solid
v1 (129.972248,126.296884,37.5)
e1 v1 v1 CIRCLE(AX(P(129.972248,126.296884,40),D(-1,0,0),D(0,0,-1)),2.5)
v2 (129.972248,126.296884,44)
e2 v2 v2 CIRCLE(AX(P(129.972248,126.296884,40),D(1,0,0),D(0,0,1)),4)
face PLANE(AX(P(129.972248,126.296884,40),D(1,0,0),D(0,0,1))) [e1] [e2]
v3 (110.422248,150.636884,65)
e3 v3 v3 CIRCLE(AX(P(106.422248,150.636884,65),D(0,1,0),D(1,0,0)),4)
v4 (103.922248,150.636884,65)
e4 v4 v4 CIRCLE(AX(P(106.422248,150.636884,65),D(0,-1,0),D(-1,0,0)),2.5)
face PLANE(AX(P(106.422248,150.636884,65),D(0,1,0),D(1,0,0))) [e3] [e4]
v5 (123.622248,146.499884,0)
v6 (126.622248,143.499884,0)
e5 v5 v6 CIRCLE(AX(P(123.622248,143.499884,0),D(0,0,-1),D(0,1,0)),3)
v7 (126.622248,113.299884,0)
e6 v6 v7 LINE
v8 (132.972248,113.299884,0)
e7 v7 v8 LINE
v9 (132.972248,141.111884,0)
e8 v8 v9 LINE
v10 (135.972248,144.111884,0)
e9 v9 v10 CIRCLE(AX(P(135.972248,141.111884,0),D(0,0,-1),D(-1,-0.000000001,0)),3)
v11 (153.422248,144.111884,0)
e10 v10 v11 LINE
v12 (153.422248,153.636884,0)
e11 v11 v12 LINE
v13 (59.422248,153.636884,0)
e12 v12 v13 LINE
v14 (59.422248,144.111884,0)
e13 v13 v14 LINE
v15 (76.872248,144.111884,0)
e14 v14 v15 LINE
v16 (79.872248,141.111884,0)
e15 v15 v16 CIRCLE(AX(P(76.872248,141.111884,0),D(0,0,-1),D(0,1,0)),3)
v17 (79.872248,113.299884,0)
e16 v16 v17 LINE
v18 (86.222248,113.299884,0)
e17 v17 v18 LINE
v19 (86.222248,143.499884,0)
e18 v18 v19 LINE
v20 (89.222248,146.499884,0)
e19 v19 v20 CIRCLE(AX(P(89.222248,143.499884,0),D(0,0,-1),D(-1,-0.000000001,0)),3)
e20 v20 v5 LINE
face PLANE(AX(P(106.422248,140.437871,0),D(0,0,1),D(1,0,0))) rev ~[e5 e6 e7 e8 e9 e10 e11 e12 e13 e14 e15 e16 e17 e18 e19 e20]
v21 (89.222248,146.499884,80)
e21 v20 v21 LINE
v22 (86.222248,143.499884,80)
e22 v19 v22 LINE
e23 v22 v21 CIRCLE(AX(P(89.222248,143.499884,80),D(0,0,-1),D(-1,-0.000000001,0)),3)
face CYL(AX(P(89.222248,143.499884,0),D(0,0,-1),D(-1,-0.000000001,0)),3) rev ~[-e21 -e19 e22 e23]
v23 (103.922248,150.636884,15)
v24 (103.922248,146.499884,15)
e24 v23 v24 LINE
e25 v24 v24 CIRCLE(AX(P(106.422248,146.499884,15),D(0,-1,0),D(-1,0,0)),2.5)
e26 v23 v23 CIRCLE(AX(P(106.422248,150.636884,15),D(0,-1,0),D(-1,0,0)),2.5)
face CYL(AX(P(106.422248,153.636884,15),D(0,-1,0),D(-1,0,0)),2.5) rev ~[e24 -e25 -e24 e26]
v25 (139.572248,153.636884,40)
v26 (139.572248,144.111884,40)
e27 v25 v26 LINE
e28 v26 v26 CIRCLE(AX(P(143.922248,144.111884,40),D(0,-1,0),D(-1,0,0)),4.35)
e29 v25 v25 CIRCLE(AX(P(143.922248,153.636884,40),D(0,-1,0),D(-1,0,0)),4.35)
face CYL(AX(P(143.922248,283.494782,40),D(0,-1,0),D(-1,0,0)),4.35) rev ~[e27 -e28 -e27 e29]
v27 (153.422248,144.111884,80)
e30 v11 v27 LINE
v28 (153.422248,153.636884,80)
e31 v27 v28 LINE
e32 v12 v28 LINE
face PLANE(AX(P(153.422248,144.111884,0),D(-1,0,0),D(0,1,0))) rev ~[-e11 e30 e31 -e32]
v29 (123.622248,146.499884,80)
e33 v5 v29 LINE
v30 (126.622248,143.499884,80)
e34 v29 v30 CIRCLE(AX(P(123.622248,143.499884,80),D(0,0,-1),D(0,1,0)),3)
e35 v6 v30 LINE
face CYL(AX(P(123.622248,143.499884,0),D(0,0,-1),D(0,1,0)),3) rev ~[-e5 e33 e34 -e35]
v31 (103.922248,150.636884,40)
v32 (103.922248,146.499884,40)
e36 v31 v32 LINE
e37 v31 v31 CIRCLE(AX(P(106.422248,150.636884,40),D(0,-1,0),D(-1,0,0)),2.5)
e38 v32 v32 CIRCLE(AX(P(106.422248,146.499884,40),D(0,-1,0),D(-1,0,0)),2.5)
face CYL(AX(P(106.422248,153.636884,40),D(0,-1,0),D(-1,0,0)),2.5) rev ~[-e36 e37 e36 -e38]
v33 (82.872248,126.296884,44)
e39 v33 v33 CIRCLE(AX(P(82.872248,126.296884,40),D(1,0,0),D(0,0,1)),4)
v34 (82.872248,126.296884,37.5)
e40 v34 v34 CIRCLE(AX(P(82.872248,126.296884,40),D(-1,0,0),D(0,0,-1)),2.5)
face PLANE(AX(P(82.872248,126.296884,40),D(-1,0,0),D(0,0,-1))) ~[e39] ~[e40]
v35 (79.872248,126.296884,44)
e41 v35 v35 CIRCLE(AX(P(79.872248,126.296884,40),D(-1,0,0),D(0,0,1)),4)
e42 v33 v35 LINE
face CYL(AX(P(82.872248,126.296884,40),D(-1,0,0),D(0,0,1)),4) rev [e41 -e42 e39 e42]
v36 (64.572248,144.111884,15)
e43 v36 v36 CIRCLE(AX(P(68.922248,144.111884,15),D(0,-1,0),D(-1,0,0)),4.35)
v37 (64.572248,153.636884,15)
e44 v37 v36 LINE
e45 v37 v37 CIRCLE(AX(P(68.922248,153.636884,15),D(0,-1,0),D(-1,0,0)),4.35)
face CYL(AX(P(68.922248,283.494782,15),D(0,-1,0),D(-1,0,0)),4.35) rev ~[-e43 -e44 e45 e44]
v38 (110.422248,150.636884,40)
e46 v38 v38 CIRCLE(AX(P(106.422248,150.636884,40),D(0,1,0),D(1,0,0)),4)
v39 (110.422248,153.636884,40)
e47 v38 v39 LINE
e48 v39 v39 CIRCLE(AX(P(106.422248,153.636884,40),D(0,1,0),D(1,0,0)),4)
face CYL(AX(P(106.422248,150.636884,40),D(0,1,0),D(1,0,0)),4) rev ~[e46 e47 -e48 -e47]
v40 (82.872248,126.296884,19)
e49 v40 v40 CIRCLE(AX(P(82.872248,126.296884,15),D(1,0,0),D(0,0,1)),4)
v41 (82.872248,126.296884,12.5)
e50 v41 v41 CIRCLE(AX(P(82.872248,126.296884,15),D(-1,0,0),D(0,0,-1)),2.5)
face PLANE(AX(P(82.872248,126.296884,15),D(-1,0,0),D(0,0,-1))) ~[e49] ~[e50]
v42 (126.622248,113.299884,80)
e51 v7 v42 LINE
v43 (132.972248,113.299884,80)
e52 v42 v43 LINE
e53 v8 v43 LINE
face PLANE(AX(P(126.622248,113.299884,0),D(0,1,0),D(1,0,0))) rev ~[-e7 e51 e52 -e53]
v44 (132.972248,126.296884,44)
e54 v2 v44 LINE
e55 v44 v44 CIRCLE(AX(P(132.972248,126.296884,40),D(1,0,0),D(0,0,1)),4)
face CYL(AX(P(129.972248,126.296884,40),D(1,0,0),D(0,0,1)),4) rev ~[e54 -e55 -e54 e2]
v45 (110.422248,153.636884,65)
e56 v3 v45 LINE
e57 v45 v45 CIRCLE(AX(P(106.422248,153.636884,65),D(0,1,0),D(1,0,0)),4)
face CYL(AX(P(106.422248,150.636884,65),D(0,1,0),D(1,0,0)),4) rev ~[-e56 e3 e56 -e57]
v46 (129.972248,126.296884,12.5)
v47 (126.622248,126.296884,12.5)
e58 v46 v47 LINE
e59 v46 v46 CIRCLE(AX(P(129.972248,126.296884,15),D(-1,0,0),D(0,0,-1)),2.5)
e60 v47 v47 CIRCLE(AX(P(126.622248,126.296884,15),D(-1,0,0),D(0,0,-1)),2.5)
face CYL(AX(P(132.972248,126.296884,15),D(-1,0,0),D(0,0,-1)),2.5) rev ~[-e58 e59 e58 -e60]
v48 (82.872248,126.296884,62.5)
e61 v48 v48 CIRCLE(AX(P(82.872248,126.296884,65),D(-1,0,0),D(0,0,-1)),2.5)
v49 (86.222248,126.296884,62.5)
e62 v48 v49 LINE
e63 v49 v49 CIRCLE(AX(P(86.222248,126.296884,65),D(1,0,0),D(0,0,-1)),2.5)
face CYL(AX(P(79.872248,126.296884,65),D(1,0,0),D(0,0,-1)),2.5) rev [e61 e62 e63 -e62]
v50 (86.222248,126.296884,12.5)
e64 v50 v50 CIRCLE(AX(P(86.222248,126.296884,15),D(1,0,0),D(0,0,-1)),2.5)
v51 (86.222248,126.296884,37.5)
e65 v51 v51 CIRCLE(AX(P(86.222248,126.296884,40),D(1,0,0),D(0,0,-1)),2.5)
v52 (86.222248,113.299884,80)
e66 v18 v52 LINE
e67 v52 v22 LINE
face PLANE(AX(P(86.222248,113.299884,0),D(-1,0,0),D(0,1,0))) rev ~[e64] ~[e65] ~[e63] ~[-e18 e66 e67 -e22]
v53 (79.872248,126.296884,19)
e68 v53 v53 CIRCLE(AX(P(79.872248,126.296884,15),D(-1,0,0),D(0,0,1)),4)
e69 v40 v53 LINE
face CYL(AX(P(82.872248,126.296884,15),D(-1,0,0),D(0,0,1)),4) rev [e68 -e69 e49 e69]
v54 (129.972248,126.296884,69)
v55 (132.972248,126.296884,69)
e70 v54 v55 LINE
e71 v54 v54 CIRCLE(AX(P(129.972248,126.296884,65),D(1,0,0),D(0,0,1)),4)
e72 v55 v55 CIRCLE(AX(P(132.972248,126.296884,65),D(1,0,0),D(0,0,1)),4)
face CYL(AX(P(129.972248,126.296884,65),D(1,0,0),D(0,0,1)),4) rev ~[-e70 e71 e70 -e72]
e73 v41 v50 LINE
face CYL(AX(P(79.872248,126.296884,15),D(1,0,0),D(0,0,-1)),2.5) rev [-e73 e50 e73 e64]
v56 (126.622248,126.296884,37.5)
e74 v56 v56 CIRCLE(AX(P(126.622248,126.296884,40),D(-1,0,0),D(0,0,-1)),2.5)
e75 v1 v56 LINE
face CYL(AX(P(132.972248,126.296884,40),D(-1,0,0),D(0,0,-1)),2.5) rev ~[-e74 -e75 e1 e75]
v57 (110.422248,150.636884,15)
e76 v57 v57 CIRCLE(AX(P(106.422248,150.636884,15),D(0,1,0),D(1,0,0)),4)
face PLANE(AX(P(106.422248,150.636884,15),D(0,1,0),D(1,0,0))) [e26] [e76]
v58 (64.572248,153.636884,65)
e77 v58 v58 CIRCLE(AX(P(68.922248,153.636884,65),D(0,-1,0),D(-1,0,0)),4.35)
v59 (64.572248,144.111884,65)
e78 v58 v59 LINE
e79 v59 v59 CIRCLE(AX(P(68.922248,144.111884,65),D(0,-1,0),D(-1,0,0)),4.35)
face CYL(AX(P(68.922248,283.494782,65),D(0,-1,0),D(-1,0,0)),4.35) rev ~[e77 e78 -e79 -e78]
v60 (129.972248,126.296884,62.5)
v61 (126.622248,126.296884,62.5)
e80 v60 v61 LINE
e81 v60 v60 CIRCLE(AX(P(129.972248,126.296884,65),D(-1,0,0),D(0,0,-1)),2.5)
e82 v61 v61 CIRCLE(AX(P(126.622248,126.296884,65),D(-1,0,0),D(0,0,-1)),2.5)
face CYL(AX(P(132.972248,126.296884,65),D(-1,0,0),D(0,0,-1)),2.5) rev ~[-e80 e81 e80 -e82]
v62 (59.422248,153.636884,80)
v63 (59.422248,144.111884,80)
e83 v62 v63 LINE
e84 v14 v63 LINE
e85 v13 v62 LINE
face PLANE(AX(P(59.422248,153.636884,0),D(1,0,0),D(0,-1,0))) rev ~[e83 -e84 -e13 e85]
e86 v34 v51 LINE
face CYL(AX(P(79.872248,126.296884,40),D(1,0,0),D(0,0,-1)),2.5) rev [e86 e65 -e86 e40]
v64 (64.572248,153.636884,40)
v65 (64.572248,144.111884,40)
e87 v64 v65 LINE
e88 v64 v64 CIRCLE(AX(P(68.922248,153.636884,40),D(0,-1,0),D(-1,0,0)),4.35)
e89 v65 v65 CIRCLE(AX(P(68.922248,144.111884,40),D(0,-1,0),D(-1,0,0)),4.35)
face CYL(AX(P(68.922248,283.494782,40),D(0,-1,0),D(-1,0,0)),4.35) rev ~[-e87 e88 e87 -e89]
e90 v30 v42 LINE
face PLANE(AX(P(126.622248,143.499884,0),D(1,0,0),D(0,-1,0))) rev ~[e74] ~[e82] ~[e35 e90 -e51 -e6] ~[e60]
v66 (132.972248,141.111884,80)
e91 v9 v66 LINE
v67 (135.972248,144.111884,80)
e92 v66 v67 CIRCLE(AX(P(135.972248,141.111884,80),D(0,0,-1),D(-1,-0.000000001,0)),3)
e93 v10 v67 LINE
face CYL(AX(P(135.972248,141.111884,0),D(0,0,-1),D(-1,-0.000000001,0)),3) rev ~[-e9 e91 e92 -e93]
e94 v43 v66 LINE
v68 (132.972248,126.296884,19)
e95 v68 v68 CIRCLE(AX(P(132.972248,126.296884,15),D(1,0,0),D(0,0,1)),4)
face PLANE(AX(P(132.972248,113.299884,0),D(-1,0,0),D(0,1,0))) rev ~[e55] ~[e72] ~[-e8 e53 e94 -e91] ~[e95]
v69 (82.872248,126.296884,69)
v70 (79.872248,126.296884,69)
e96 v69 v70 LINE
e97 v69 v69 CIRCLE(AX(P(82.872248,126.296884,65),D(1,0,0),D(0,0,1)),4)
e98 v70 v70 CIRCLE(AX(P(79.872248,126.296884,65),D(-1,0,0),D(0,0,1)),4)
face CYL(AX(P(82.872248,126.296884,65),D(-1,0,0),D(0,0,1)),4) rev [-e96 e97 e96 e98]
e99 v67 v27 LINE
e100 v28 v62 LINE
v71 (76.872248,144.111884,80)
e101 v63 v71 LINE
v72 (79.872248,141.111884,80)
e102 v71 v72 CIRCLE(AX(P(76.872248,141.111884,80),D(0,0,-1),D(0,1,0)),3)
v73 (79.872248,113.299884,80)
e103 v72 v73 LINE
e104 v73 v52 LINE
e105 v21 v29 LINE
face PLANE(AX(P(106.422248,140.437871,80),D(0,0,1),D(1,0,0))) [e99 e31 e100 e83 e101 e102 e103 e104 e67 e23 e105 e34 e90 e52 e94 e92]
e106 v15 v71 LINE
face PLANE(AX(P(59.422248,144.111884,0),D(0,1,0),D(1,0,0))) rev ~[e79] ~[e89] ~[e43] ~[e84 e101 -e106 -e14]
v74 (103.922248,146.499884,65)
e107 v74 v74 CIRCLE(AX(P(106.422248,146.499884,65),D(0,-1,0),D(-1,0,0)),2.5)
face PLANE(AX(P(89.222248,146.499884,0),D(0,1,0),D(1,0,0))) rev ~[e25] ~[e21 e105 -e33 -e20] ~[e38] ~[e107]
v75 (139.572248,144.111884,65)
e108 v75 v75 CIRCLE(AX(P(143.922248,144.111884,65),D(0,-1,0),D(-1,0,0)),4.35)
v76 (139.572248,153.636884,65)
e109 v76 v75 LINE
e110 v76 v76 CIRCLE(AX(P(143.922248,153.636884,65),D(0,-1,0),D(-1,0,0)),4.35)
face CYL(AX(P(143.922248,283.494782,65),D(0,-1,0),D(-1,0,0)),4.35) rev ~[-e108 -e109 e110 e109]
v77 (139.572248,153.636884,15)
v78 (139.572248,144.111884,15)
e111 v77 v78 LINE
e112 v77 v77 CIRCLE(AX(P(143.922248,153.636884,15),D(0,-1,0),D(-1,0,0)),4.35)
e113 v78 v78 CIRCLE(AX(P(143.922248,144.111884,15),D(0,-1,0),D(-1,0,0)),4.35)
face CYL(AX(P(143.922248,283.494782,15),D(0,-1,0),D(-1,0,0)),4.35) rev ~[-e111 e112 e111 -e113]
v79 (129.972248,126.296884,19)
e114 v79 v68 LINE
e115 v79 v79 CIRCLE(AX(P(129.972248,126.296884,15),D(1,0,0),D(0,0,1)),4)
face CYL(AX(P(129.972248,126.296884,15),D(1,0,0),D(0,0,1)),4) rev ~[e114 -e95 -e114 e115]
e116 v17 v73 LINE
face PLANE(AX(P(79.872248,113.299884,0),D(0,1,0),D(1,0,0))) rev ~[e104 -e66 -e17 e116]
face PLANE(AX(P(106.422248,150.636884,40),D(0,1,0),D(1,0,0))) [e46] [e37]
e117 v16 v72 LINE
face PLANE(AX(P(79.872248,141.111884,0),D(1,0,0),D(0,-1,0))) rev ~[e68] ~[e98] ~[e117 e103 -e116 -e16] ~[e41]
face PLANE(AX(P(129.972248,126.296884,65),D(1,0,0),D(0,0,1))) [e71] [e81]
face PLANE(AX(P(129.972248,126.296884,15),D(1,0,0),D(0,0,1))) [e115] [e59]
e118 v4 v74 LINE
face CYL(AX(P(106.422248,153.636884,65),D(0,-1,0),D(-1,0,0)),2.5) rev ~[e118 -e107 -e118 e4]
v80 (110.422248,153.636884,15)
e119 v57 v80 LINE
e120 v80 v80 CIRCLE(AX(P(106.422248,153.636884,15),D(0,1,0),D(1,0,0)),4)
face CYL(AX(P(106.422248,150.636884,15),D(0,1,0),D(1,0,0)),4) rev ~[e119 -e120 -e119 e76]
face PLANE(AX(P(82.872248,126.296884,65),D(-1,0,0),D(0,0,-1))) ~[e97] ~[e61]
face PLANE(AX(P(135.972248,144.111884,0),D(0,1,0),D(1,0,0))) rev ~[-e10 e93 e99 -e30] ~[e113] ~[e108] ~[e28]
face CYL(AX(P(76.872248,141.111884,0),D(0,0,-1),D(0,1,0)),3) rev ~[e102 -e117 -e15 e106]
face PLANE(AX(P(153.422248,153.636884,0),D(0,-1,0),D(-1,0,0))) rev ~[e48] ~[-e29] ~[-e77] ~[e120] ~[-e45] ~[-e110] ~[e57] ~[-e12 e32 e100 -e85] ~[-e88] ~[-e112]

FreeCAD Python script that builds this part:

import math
import FreeCAD as App
import Part
import Sketcher

V = App.Vector

doc = App.newDocument("Part")
params = doc.addObject("Spreadsheet::Sheet", "Params")
for row, (alias, value) in enumerate([
    ("sketch1_radius", "3 mm"),
    ("sketch1_width", "94 mm"),
    ("sketch1_width2", "34.4 mm"),
    ("sketch1_height", "30.2 mm"),
    ("sketch1_width3", "17.45 mm"),
    ("pad1_length", "80 mm"),
    ("sketch2_diameter", "8.7 mm"),
    ("hole_diameter", "8.7 mm"),
    ("sketch3_diameter", "5 mm"),
    ("hole2_diameter", "5 mm"),
    ("hole2_cbore_diameter", "8 mm"),
    ("hole2_cbore_depth", "3 mm"),
    ("sketch4_diameter", "5 mm"),
    ("hole3_diameter", "5 mm"),
    ("hole3_depth", "7 mm"),
    ("hole3_cbore_diameter", "8 mm"),
    ("hole3_cbore_depth", "3 mm"),
], start=1):
    params.set(f"A{row}", alias)
    params.set(f"B{row}", "=" + value)
    params.setAlias(f"B{row}", alias)

body = doc.addObject("PartDesign::Body", "Body")

sketch1 = doc.addObject("Sketcher::SketchObject", "Sketch")
body.addObject(sketch1)
sketch1.AttachmentSupport = (doc.XY_Plane, [""])
sketch1.MapMode = "FlatFace"
sketch1.addGeometry([
    Part.LineSegment(V(153.4, 153.6, 0), V(59.4, 153.6, 0)),
    Part.LineSegment(V(59.4, 153.6, 0), V(59.4, 144.1, 0)),
    Part.LineSegment(V(59.4, 144.1, 0), V(76.9, 144.1, 0)),
    Part.ArcOfCircle(Part.Circle(V(76.9, 141.1, 0), V(0, 0, 1), 3), math.radians(0), math.radians(90)),
    Part.LineSegment(V(79.9, 141.1, 0), V(79.9, 113.3, 0)),
    Part.LineSegment(V(79.9, 113.3, 0), V(86.2, 113.3, 0)),
    Part.LineSegment(V(86.2, 113.3, 0), V(86.2, 143.5, 0)),
    Part.ArcOfCircle(Part.Circle(V(89.2, 143.5, 0), V(0, 0, 1), 3), math.radians(90), math.radians(180)),
    Part.LineSegment(V(89.2, 146.5, 0), V(123.6, 146.5, 0)),
    Part.ArcOfCircle(Part.Circle(V(123.6, 143.5, 0), V(0, 0, 1), 3), math.radians(0), math.radians(90)),
    Part.LineSegment(V(126.6, 143.5, 0), V(126.6, 113.3, 0)),
    Part.LineSegment(V(126.6, 113.3, 0), V(133, 113.3, 0)),
    Part.LineSegment(V(133, 113.3, 0), V(133, 141.1, 0)),
    Part.ArcOfCircle(Part.Circle(V(136, 141.1, 0), V(0, 0, 1), 3), math.radians(90), math.radians(180)),
    Part.LineSegment(V(136, 144.1, 0), V(153.4, 144.1, 0)),
    Part.LineSegment(V(153.4, 144.1, 0), V(153.4, 153.6, 0)),
], False)
sketch1.addConstraint([
    Sketcher.Constraint("Coincident", 0, 2, 1, 1),
    Sketcher.Constraint("Coincident", 1, 2, 2, 1),
    Sketcher.Constraint("Tangent", 2, 2, 3, 2),
    Sketcher.Constraint("Tangent", 3, 1, 4, 1),
    Sketcher.Constraint("Coincident", 4, 2, 5, 1),
    Sketcher.Constraint("Coincident", 5, 2, 6, 1),
    Sketcher.Constraint("Tangent", 6, 2, 7, 2),
    Sketcher.Constraint("Tangent", 7, 1, 8, 1),
    Sketcher.Constraint("Tangent", 8, 2, 9, 2),
    Sketcher.Constraint("Tangent", 9, 1, 10, 1),
    Sketcher.Constraint("Coincident", 10, 2, 11, 1),
    Sketcher.Constraint("Coincident", 11, 2, 12, 1),
    Sketcher.Constraint("Tangent", 12, 2, 13, 2),
    Sketcher.Constraint("Tangent", 13, 1, 14, 1),
    Sketcher.Constraint("Coincident", 14, 2, 15, 1),
    Sketcher.Constraint("Coincident", 15, 2, 0, 1),
    Sketcher.Constraint("Horizontal", 0),
    Sketcher.Constraint("Vertical", 1),
    Sketcher.Constraint("Horizontal", 2),
    Sketcher.Constraint("Vertical", 4),
    Sketcher.Constraint("Horizontal", 5),
    Sketcher.Constraint("Vertical", 6),
    Sketcher.Constraint("Horizontal", 8),
    Sketcher.Constraint("Vertical", 10),
    Sketcher.Constraint("Horizontal", 11),
    Sketcher.Constraint("Vertical", 12),
    Sketcher.Constraint("Horizontal", 14),
    Sketcher.Constraint("Vertical", 15),
    Sketcher.Constraint("Equal", 3, 7),
    Sketcher.Constraint("Equal", 7, 9),
    Sketcher.Constraint("Equal", 9, 13),
    Sketcher.Constraint("Horizontal", 3, 3, 13, 3),
    Sketcher.Constraint("Horizontal", 5, 2, 10, 2),
    Sketcher.Constraint("Equal", 5, 11),
    Sketcher.Constraint("Equal", 2, 14),
    Sketcher.Constraint("Radius", 3, 3.0),
    Sketcher.Constraint("DistanceX", 0, 2, 0, 1, 94.0),
    Sketcher.Constraint("DistanceX", 8, 1, 8, 2, 34.4),
    Sketcher.Constraint("DistanceY", 6, 1, 6, 2, 30.2),
    Sketcher.Constraint("DistanceX", 2, 1, 2, 2, 17.45),
    Sketcher.Constraint("DistanceY", 1, 2, 1, 1, 9.525),
    Sketcher.Constraint("DistanceY", 4, 2, 4, 1, 27.812),
    Sketcher.Constraint("DistanceX", -1, 1, 3, 3, 76.872248),
    Sketcher.Constraint("DistanceY", -1, 1, 3, 3, 141.111884),
])
sketch1.setExpression("Constraints[35]", "Params.sketch1_radius")
sketch1.setExpression("Constraints[36]", "Params.sketch1_width")
sketch1.setExpression("Constraints[37]", "Params.sketch1_width2")
sketch1.setExpression("Constraints[38]", "Params.sketch1_height")
sketch1.setExpression("Constraints[39]", "Params.sketch1_width3")
pad1 = doc.addObject("PartDesign::Pad", "Pad")
body.addObject(pad1)
pad1.Profile = sketch1
pad1.setExpression("Length", "Params.pad1_length")

sketch2 = doc.addObject("Sketcher::SketchObject", "Sketch001")
body.addObject(sketch2)
sketch2.AttachmentSupport = (doc.XZ_Plane, [""])
sketch2.MapMode = "FlatFace"
sketch2.AttachmentOffset = App.Placement(V(0, 0, -153.636884), App.Rotation())
sketch2.addGeometry([
    Part.Circle(V(68.9, 65, 0), V(0, 0, 1), 4.3),
    Part.Circle(V(68.9, 40, 0), V(0, 0, 1), 4.3),
    Part.Circle(V(68.9, 15, 0), V(0, 0, 1), 4.3),
    Part.Circle(V(143.9, 15, 0), V(0, 0, 1), 4.3),
    Part.Circle(V(143.9, 40, 0), V(0, 0, 1), 4.3),
    Part.Circle(V(143.9, 65, 0), V(0, 0, 1), 4.3),
], False)
sketch2.addConstraint([
    Sketcher.Constraint("Equal", 0, 1),
    Sketcher.Constraint("Equal", 1, 2),
    Sketcher.Constraint("Equal", 2, 3),
    Sketcher.Constraint("Equal", 3, 4),
    Sketcher.Constraint("Equal", 4, 5),
    Sketcher.Constraint("Horizontal", 2, 3, 3, 3),
    Sketcher.Constraint("Horizontal", 1, 3, 4, 3),
    Sketcher.Constraint("Horizontal", 0, 3, 5, 3),
    Sketcher.Constraint("Vertical", 0, 3, 1, 3),
    Sketcher.Constraint("Vertical", 1, 3, 2, 3),
    Sketcher.Constraint("Vertical", 3, 3, 4, 3),
    Sketcher.Constraint("Vertical", 4, 3, 5, 3),
    Sketcher.Constraint("Diameter", 0, 8.7),
    Sketcher.Constraint("DistanceY", -1, 1, 0, 3, 65.0),
    Sketcher.Constraint("DistanceY", -1, 1, 1, 3, 40.0),
    Sketcher.Constraint("DistanceY", -1, 1, 2, 3, 15.0),
    Sketcher.Constraint("DistanceX", 2, 3, 3, 3, 75.0),
    Sketcher.Constraint("DistanceX", -1, 1, 0, 3, 68.922248),
])
sketch2.setExpression("Constraints[12]", "Params.sketch2_diameter")
doc.recompute()
hole = doc.addObject("PartDesign::Hole", "Hole")
body.addObject(hole)
hole.Profile = sketch2
hole.ThreadType = "None"
hole.setExpression("Diameter", "Params.hole_diameter")
hole.DepthType = "ThroughAll"
hole.Reversed = True

sketch3 = doc.addObject("Sketcher::SketchObject", "Sketch002")
body.addObject(sketch3)
sketch3.AttachmentSupport = (doc.XZ_Plane, [""])
sketch3.MapMode = "FlatFace"
sketch3.AttachmentOffset = App.Placement(V(0, 0, -153.636884), App.Rotation())
sketch3.addGeometry([
    Part.Circle(V(106.4, 65, 0), V(0, 0, 1), 2.5),
    Part.Circle(V(106.4, 40, 0), V(0, 0, 1), 2.5),
    Part.Circle(V(106.4, 15, 0), V(0, 0, 1), 2.5),
], False)
sketch3.addConstraint([
    Sketcher.Constraint("Equal", 0, 1),
    Sketcher.Constraint("Equal", 1, 2),
    Sketcher.Constraint("Vertical", 0, 3, 1, 3),
    Sketcher.Constraint("Vertical", 1, 3, 2, 3),
    Sketcher.Constraint("Diameter", 0, 5.0),
    Sketcher.Constraint("DistanceY", -1, 1, 0, 3, 65.0),
    Sketcher.Constraint("DistanceY", -1, 1, 1, 3, 40.0),
    Sketcher.Constraint("DistanceY", -1, 1, 2, 3, 15.0),
    Sketcher.Constraint("DistanceX", -1, 1, 0, 3, 106.422248),
])
sketch3.setExpression("Constraints[4]", "Params.sketch3_diameter")
doc.recompute()
hole2 = doc.addObject("PartDesign::Hole", "Hole001")
body.addObject(hole2)
hole2.Profile = sketch3
hole2.ThreadType = "None"
hole2.setExpression("Diameter", "Params.hole2_diameter")
hole2.DepthType = "ThroughAll"
hole2.HoleCutType = "Counterbore"
hole2.setExpression("HoleCutDiameter", "Params.hole2_cbore_diameter")
hole2.setExpression("HoleCutDepth", "Params.hole2_cbore_depth")
hole2.Reversed = True

sketch4 = doc.addObject("Sketcher::SketchObject", "Sketch003")
body.addObject(sketch4)
sketch4.AttachmentSupport = (doc.YZ_Plane, [""])
sketch4.MapMode = "FlatFace"
sketch4.AttachmentOffset = App.Placement(V(0, 0, 132.972248), App.Rotation())
sketch4.addGeometry([
    Part.Circle(V(126.3, 65, 0), V(0, 0, 1), 2.5),
    Part.Circle(V(126.3, 40, 0), V(0, 0, 1), 2.5),
    Part.Circle(V(126.3, 15, 0), V(0, 0, 1), 2.5),
], False)
sketch4.addConstraint([
    Sketcher.Constraint("Equal", 0, 1),
    Sketcher.Constraint("Equal", 1, 2),
    Sketcher.Constraint("Vertical", 0, 3, 1, 3),
    Sketcher.Constraint("Vertical", 1, 3, 2, 3),
    Sketcher.Constraint("Diameter", 0, 5.0),
    Sketcher.Constraint("DistanceY", -1, 1, 0, 3, 65.0),
    Sketcher.Constraint("DistanceY", -1, 1, 1, 3, 40.0),
    Sketcher.Constraint("DistanceY", -1, 1, 2, 3, 15.0),
    Sketcher.Constraint("DistanceX", -1, 1, 0, 3, 126.296884),
])
sketch4.setExpression("Constraints[4]", "Params.sketch4_diameter")
doc.recompute()
hole3 = doc.addObject("PartDesign::Hole", "Hole002")
body.addObject(hole3)
hole3.Profile = sketch4
hole3.ThreadType = "None"
hole3.setExpression("Diameter", "Params.hole3_diameter")
hole3.DepthType = "Dimension"
hole3.setExpression("Depth", "Params.hole3_depth")
hole3.DrillPoint = "Flat"
hole3.HoleCutType = "Counterbore"
hole3.setExpression("HoleCutDiameter", "Params.hole3_cbore_diameter")
hole3.setExpression("HoleCutDepth", "Params.hole3_cbore_depth")
doc.recompute()

datumplane = doc.addObject("PartDesign::Plane", "DatumPlane")
body.addObject(datumplane)
datumplane.AttachmentSupport = (doc.YZ_Plane, [""])
datumplane.MapMode = "FlatFace"
datumplane.AttachmentOffset = App.Placement(V(0, 0, 106.422248), App.Rotation())
mirrored = doc.addObject("PartDesign::Mirrored", "Mirrored")
body.addObject(mirrored)
mirrored.Originals = [hole3]
mirrored.MirrorPlane = (datumplane, [""])
body.Tip = mirrored

doc.recompute()
